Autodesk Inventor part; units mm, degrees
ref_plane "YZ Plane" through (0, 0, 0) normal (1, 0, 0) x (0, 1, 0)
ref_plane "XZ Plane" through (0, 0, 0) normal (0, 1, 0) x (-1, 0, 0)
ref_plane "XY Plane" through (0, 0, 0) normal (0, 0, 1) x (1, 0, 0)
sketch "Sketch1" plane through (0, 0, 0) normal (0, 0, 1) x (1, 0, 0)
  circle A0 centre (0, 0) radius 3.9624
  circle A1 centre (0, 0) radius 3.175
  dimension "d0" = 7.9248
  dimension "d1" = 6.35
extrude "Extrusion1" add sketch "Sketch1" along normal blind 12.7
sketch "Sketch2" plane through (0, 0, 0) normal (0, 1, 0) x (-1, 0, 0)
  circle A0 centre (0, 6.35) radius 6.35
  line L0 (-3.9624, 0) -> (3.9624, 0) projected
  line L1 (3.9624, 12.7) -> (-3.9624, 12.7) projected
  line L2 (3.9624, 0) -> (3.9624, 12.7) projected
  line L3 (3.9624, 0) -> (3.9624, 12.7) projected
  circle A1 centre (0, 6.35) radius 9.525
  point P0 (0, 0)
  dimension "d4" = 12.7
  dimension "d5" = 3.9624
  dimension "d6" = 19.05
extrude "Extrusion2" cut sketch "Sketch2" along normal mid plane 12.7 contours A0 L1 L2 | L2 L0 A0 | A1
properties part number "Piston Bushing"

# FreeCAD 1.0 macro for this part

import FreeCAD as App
import Part
import Sketcher
Q = App.Units.Quantity

doc = App.newDocument("Part")
body = doc.addObject("PartDesign::Body", "Body")

sketch1 = body.newObject("Sketcher::SketchObject", "Sketch")
sketch1.AttachmentSupport = (doc.getObject("XY_Plane"), [""])
sketch1.MapMode = "FlatFace"
sketch1.addGeometry([
    Part.Circle(App.Vector(0, 0, 0), App.Vector(0, 0, 1), 4),
    Part.Circle(App.Vector(0, 0, 0), App.Vector(0, 0, 1), 3.2),
], False)
sketch1.addConstraint([
    Sketcher.Constraint("Coincident", 0, 3, -1, 1),
    Sketcher.Constraint("Coincident", 1, 3, -1, 1),
    Sketcher.Constraint("Diameter", 1, Q("0.25 in")),
    Sketcher.Constraint("Diameter", 0, Q("0.312 in")),
])
pad1 = body.newObject("PartDesign::Pad", "Pad")
pad1.Profile = sketch1
pad1.Length = Q("0.5 in")

sketch2 = body.newObject("Sketcher::SketchObject", "Sketch001")
sketch2.AttachmentSupport = (doc.getObject("XZ_Plane"), [""])
sketch2.MapMode = "FlatFace"
sketch2.addGeometry([
    Part.Circle(App.Vector(0, 6, 0), App.Vector(0, 0, 1), 10),
    Part.Circle(App.Vector(0, 6, 0), App.Vector(0, 0, 1), 6),
], False)
sketch2.addConstraint([
    Sketcher.Constraint("Coincident", 1, 3, 0, 3),
    Sketcher.Constraint("PointOnObject", 0, 3, -2),
    Sketcher.Constraint("Diameter", 1, Q("0.5 in")),
    Sketcher.Constraint("Diameter", 0, Q("0.75 in")),
    Sketcher.Constraint("DistanceY", -1, 1, 0, 3, Q("0.25 in")),
])
pocket1 = body.newObject("PartDesign::Pocket", "Pocket")
pocket1.Profile = sketch2
pocket1.Length = Q("0.5 in")
pocket1.Midplane = True

doc.recompute()
